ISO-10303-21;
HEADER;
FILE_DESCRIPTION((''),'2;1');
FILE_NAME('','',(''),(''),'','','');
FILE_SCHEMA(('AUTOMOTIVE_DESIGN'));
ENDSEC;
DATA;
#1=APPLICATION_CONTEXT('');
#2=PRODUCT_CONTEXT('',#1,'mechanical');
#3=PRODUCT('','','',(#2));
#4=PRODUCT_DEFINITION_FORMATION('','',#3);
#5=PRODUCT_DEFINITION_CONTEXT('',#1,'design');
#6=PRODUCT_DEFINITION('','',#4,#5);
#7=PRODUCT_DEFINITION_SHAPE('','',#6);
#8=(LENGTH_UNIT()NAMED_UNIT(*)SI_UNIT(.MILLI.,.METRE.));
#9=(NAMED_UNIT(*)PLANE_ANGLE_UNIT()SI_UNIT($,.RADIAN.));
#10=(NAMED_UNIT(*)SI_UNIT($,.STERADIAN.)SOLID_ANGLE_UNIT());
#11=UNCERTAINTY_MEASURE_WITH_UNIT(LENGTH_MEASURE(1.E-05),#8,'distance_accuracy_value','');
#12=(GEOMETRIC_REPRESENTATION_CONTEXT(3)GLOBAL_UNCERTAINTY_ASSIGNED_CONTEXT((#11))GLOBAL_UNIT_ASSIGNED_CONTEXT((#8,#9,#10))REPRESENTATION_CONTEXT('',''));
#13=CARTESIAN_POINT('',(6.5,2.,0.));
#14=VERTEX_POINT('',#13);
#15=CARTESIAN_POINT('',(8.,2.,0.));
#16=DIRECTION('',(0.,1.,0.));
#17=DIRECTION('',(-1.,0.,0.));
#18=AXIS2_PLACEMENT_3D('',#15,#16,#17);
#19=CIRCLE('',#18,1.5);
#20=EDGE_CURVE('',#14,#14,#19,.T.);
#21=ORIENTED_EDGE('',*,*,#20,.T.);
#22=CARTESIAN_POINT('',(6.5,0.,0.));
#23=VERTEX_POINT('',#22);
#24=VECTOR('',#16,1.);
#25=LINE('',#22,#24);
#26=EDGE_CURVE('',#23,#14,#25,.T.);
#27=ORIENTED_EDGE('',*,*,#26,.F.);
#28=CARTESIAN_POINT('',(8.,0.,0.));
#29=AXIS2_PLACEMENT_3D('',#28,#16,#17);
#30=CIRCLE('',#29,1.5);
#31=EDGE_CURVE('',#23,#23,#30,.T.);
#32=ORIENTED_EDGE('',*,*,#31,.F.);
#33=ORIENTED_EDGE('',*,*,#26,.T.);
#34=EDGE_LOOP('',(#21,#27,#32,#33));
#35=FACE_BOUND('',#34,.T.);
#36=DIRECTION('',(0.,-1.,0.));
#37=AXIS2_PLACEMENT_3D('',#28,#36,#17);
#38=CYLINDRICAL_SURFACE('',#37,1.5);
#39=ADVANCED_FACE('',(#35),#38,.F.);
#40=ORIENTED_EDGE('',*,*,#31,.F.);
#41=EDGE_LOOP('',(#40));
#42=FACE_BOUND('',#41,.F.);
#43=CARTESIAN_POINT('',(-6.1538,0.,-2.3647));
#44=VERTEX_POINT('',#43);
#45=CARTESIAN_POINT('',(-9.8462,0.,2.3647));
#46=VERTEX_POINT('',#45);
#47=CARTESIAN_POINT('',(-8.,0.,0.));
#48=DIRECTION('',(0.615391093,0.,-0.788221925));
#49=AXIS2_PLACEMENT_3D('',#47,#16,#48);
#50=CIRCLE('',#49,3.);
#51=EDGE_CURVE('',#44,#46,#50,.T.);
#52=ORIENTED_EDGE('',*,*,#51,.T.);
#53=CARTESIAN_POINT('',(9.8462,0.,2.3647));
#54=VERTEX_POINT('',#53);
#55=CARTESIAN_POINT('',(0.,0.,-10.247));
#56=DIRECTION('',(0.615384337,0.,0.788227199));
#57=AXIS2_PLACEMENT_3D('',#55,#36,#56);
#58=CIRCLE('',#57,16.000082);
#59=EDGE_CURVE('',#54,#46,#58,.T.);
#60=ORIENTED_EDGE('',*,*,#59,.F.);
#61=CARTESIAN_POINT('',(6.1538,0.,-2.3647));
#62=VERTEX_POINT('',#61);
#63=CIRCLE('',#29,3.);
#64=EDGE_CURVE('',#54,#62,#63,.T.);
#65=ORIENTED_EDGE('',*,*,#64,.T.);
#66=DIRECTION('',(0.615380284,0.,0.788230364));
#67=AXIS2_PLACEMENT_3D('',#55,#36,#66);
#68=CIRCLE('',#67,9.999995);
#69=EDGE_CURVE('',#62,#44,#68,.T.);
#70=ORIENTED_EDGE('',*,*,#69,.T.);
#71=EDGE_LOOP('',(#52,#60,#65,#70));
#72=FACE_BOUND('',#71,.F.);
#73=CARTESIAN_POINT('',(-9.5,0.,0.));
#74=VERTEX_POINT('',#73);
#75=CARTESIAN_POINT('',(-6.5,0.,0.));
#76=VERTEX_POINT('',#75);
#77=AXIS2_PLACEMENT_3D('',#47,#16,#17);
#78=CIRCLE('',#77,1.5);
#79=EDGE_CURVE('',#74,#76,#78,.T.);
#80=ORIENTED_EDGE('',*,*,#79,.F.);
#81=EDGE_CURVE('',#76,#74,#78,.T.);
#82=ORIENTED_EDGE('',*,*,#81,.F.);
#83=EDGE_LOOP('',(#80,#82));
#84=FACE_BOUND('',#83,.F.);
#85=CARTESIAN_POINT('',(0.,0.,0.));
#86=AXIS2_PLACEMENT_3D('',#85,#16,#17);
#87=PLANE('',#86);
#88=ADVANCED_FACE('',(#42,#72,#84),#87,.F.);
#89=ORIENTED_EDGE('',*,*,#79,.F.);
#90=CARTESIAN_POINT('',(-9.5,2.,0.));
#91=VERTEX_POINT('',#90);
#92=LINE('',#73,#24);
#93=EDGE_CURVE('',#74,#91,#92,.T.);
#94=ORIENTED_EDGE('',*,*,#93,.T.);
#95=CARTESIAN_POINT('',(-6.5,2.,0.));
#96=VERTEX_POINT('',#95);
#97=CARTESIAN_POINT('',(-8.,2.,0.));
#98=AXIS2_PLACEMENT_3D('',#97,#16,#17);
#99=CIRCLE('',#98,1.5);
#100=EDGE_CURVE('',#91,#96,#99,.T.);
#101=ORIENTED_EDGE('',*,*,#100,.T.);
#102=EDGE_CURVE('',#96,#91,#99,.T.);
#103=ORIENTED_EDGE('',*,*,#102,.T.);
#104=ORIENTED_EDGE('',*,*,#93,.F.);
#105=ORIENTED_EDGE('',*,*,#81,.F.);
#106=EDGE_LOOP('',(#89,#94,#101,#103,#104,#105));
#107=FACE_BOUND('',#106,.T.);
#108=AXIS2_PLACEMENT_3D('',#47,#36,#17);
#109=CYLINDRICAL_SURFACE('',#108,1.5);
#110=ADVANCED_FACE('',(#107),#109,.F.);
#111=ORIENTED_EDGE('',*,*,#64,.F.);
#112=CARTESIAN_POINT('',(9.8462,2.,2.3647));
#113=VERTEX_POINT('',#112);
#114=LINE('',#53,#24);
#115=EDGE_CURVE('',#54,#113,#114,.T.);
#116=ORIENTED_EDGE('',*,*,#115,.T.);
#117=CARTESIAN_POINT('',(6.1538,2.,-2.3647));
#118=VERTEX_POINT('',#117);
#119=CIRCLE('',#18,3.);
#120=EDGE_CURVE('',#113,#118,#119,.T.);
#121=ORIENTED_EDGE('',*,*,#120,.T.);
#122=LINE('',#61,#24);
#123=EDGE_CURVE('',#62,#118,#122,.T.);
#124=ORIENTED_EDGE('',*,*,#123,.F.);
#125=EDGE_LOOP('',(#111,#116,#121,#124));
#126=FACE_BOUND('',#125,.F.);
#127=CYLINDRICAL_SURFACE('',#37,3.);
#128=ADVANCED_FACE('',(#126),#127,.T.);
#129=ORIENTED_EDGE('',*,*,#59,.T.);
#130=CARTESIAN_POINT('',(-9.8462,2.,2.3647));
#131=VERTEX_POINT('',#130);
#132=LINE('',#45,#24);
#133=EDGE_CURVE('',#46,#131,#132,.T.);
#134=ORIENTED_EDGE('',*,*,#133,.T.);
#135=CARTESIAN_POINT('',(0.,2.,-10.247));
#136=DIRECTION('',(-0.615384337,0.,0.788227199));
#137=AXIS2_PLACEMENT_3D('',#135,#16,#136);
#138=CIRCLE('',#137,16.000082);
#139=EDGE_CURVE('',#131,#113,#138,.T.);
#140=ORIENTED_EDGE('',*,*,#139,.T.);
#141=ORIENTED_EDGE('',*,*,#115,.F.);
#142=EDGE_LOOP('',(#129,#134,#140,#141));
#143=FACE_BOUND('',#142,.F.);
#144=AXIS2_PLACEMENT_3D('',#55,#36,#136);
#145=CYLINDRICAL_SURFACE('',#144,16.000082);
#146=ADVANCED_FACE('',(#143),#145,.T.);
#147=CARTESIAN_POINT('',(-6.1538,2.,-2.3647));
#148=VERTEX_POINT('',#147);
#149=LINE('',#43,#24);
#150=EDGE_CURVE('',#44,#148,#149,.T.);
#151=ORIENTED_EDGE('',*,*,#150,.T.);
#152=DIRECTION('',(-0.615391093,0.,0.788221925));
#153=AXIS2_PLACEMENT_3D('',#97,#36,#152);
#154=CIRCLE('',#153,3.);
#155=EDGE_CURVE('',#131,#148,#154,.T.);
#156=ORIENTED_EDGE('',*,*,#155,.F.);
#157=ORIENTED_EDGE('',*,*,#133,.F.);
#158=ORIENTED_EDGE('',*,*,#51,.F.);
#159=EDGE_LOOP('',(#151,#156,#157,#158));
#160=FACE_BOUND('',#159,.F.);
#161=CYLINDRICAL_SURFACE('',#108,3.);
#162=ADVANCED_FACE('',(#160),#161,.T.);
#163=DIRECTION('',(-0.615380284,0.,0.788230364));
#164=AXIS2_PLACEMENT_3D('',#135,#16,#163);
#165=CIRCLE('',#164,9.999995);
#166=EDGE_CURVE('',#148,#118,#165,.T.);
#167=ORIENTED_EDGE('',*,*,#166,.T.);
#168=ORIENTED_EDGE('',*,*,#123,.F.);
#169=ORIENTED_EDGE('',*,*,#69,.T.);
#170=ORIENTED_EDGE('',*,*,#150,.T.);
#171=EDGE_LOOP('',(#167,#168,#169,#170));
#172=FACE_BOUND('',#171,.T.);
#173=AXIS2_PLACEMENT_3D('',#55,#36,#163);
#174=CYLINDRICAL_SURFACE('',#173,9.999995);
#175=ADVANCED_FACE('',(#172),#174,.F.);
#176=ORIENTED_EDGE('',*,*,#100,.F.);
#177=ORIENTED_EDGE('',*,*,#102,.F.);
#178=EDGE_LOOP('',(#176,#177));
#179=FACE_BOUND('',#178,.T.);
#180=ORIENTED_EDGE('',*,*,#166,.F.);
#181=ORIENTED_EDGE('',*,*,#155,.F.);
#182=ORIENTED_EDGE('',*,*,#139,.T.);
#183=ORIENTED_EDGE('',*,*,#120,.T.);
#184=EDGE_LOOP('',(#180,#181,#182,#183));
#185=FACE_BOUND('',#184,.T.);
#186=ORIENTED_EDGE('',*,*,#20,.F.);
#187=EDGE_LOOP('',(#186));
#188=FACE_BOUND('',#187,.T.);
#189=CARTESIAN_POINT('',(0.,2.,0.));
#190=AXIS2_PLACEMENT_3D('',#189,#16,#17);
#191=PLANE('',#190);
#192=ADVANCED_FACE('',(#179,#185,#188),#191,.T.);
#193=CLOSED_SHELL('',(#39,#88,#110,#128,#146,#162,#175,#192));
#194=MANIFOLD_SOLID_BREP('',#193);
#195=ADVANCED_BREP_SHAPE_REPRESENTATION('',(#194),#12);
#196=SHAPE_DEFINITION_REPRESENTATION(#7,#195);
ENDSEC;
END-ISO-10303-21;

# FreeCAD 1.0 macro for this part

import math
import FreeCAD as App
import Part
import Sketcher
from FreeCAD import Vector
Q = App.Units.Quantity

doc = App.newDocument("Part")
body = doc.addObject("PartDesign::Body", "Body")

sketch1 = body.newObject("Sketcher::SketchObject", "Sketch")
sketch1.AttachmentSupport = (doc.getObject("XZ_Plane"), [""])
sketch1.MapMode = "FlatFace"
sketch1.addGeometry([
    Part.ArcOfCircle(Part.Circle(Vector(-8, 0, 0), Vector(0, 0, 1), 3), math.radians(128), math.radians(308)),
    Part.ArcOfCircle(Part.Circle(Vector(0, -10.2, 0), Vector(0, 0, 1), 16), math.radians(52), math.radians(128)),
    Part.ArcOfCircle(Part.Circle(Vector(8, 0, 0), Vector(0, 0, 1), 3), math.radians(-128), math.radians(52)),
    Part.ArcOfCircle(Part.Circle(Vector(0, -10.2, 0), Vector(0, 0, 1), 10), math.radians(52), math.radians(128)),
    Part.Circle(Vector(-8, 0, 0), Vector(0, 0, 1), 1.5),
    Part.Circle(Vector(8, 0, 0), Vector(0, 0, 1), 1.5),
], False)
sketch1.addConstraint([
    Sketcher.Constraint("Tangent", 0, 1, 1, 2),
    Sketcher.Constraint("Tangent", 1, 1, 2, 2),
    Sketcher.Constraint("Tangent", 2, 1, 3, 1),
    Sketcher.Constraint("Tangent", 3, 2, 0, 2),
    Sketcher.Constraint("Coincident", 3, 3, 1, 3),
    Sketcher.Constraint("Coincident", 4, 3, 0, 3),
    Sketcher.Constraint("Coincident", 5, 3, 2, 3),
    Sketcher.Constraint("Equal", 4, 5),
    Sketcher.Constraint("Symmetric", 0, 3, 2, 3, -1, 1),
    Sketcher.Constraint("PointOnObject", 0, 3, -1),
    Sketcher.Constraint("Diameter", 4, Q("3 mm")),
    Sketcher.Constraint("Radius", 0, Q("3 mm")),
    Sketcher.Constraint("Radius", 1, Q("16 mm")),
    Sketcher.Constraint("DistanceX", 0, 3, 2, 3, Q("16 mm")),
])
pad1 = body.newObject("PartDesign::Pad", "Pad")
pad1.Profile = sketch1
pad1.Length = 2
pad1.Reversed = True

doc.recompute()
